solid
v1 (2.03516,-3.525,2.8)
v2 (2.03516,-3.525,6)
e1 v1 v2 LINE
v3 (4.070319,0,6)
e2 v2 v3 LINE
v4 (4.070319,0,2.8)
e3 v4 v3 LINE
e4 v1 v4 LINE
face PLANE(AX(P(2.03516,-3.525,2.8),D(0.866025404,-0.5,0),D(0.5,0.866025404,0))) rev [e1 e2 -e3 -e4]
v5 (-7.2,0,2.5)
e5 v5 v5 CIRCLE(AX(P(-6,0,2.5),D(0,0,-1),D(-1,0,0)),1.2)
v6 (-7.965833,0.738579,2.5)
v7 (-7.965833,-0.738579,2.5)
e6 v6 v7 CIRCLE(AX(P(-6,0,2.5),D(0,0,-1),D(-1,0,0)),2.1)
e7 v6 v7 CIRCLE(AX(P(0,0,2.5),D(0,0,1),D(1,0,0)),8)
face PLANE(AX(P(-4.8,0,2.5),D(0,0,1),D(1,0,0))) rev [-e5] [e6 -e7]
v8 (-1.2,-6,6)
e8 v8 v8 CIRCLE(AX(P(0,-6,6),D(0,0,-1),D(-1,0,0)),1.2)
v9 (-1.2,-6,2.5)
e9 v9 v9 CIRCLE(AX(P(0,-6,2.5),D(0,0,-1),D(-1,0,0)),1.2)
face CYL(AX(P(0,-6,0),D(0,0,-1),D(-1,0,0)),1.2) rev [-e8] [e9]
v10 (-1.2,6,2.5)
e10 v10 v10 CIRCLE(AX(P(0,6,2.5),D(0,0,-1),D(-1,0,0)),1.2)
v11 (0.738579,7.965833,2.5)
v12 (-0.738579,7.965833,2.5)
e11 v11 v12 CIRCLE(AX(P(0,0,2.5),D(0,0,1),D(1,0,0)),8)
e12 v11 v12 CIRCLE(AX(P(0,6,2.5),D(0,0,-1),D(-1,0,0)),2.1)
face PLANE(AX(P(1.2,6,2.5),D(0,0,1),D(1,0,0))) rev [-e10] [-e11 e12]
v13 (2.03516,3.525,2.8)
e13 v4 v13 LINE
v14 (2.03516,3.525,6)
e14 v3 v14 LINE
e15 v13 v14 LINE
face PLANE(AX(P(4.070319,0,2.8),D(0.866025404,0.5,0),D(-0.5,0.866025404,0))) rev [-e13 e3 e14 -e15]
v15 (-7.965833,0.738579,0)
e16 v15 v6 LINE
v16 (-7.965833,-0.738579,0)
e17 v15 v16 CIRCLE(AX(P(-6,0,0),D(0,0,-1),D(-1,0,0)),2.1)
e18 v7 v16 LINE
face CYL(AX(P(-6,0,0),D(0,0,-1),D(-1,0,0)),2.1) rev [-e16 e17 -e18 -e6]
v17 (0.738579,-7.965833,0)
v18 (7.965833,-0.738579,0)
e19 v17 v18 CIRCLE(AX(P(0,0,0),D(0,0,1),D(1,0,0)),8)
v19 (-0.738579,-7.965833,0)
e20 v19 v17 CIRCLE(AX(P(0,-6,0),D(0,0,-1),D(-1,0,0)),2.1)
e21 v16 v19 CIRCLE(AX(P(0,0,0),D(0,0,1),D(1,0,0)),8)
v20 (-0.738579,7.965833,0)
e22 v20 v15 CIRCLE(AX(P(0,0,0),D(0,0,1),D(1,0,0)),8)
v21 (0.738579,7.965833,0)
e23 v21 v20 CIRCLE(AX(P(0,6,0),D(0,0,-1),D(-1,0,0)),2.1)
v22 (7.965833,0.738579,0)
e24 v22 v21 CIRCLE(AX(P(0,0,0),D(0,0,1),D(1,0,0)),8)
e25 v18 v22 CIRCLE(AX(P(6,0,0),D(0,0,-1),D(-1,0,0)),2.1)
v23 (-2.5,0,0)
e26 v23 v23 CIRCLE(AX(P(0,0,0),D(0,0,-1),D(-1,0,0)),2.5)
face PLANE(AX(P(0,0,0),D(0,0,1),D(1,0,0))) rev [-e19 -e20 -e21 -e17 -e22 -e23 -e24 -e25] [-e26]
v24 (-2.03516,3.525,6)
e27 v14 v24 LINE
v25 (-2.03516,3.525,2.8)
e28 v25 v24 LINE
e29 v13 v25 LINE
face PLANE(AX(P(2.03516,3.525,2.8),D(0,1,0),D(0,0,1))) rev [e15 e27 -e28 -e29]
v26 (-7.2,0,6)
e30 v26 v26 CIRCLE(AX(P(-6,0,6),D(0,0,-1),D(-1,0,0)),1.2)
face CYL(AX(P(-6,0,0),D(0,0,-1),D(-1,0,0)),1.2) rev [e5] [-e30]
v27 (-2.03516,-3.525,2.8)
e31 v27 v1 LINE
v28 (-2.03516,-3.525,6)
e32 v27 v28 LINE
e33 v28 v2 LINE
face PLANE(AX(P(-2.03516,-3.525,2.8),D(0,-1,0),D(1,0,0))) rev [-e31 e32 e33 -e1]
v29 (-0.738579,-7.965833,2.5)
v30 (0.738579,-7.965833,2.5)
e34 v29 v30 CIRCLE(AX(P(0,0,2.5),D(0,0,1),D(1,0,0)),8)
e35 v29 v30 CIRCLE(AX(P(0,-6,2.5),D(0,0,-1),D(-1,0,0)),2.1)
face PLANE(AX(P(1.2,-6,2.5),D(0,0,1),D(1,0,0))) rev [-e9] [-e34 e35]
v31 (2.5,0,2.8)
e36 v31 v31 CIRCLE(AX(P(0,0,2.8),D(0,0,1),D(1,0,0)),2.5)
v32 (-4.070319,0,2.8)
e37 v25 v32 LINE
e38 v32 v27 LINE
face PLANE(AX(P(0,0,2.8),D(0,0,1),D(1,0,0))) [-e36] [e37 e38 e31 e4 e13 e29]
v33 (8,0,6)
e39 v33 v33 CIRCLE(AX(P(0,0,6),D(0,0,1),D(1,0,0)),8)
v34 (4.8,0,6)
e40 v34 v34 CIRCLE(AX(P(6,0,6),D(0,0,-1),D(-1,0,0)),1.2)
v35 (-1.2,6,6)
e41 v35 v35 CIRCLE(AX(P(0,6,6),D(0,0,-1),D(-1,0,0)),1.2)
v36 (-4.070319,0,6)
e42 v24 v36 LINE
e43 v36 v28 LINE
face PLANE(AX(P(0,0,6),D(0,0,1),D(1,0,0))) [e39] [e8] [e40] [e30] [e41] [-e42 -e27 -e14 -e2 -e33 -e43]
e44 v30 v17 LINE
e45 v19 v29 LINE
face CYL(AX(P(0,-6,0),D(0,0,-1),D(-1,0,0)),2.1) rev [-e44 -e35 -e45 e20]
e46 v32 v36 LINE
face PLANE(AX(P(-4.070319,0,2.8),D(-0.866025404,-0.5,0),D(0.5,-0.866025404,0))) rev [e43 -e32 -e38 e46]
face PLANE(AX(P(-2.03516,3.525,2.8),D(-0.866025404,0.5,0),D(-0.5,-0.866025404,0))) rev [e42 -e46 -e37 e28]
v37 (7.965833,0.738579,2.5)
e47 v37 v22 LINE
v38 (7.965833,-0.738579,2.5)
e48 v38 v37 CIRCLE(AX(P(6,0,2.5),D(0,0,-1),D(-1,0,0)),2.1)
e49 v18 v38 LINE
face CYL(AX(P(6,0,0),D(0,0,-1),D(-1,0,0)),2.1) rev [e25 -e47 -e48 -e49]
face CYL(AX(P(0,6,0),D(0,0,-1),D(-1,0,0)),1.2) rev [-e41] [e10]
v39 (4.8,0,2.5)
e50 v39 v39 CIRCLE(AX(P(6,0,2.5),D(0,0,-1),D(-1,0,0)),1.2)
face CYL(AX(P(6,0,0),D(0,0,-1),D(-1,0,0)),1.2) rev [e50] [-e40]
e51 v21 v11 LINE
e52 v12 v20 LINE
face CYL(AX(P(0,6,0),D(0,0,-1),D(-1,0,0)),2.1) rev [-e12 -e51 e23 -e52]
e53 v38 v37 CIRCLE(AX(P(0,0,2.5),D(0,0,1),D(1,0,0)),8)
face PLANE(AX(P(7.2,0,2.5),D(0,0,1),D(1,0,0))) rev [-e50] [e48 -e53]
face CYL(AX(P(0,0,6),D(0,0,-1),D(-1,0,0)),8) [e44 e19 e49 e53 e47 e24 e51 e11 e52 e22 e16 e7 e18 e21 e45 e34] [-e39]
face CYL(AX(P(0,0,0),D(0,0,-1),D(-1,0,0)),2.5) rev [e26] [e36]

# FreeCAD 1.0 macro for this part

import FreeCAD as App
import Part
import Sketcher

V = App.Vector
Q = App.Units.Quantity


def add_polygon(sketch, points):
    """Adds a closed chain of lines whose ends are joined by coincident constraints."""
    first, n = sketch.GeometryCount, len(points)
    for a, b in zip(points, points[1:] + points[:1]):
        sketch.addGeometry(Part.LineSegment(App.Vector(*a, 0), App.Vector(*b, 0)), False)
    for i in range(n):
        sketch.addConstraint(Sketcher.Constraint("Coincident", first + i, 2, first + (i + 1) % n, 1))

doc = App.newDocument("Part")
body = doc.addObject("PartDesign::Body", "Body")

# Sketch on XY plane
sketch1 = doc.addObject("Sketcher::SketchObject", "Sketch")
body.addObject(sketch1)
sketch1.AttachmentSupport = (doc.XY_Plane, [""])
sketch1.MapMode = "FlatFace"
sketch1.addGeometry(Part.Circle(V(0, 0, 0), V(0, 0, 1), 8), False)
sketch1.addConstraint(Sketcher.Constraint("Coincident", 0, 3, -1, 1))
sketch1.addConstraint(Sketcher.Constraint("Diameter", 0, 16.0))
pad1 = doc.addObject("PartDesign::Pad", "Pad")
body.addObject(pad1)
pad1.Profile = sketch1
pad1.Length = 6

# Sketch on XY plane
sketch2 = doc.addObject("Sketcher::SketchObject", "Sketch001")
body.addObject(sketch2)
sketch2.AttachmentSupport = (doc.XY_Plane, [""])
sketch2.MapMode = "FlatFace"
sketch2.AttachmentOffset = App.Placement(V(0, 0, 6), App.Rotation())
add_polygon(sketch2, [(4.1, 0), (2, 3.5), (-2, 3.5), (-4.1, 0), (-2, -3.5), (2, -3.5)])  # lines 0-5
sketch2.addConstraint(Sketcher.Constraint("Horizontal", 1))
sketch2.addConstraint(Sketcher.Constraint("Horizontal", 4))
sketch2.addConstraint(Sketcher.Constraint("Symmetric", 0, 2, 3, 2, -1, 1))
sketch2.addConstraint(Sketcher.Constraint("Symmetric", 2, 2, 5, 2, -1, 1))
sketch2.addConstraint(Sketcher.Constraint("PointOnObject", 2, 2, -1))
sketch2.addConstraint(Sketcher.Constraint("Parallel", 2, 5))
sketch2.addConstraint(Sketcher.Constraint("Vertical", 1, 2, 3, 2))
sketch2.addConstraint(Sketcher.Constraint("Angle", 0, Q("120 deg")))
sketch2.addConstraint(Sketcher.Constraint("DistanceY", 3, 2, 1, 2, 7.05))
sketch2.addConstraint(Sketcher.Constraint("DistanceX", 1, 2, 1, 1, 4.070319))
pocket1 = doc.addObject("PartDesign::Pocket", "Pocket")
body.addObject(pocket1)
pocket1.Profile = sketch2
pocket1.Length = 3.2

# Sketch on XY plane
sketch3 = doc.addObject("Sketcher::SketchObject", "Sketch002")
body.addObject(sketch3)
sketch3.AttachmentSupport = (doc.XY_Plane, [""])
sketch3.MapMode = "FlatFace"
sketch3.addGeometry(Part.Circle(V(-6, 0, 0), V(0, 0, 1), 1.2), False)
sketch3.addConstraint(Sketcher.Constraint("PointOnObject", 0, 3, -1))
sketch3.addConstraint(Sketcher.Constraint("Diameter", 0, 2.4))
sketch3.addConstraint(Sketcher.Constraint("DistanceX", 0, 3, -1, 1, 6.0))
doc.recompute()
hole = doc.addObject("PartDesign::Hole", "Hole")
body.addObject(hole)
hole.Profile = sketch3
hole.ThreadType = "None"
hole.Diameter = 2.4
hole.DepthType = "ThroughAll"
hole.HoleCutType = "Counterbore"
hole.HoleCutDiameter = 4.2
hole.HoleCutDepth = 2.5
hole.Reversed = True
doc.recompute()

polarpattern = doc.addObject("PartDesign::PolarPattern", "PolarPattern")
body.addObject(polarpattern)
polarpattern.Originals = [hole]
polarpattern.Axis = (doc.Z_Axis, [""])
polarpattern.Angle = 360
polarpattern.Occurrences = 4
body.Tip = polarpattern

# Sketch on XY plane
sketch4 = doc.addObject("Sketcher::SketchObject", "Sketch003")
body.addObject(sketch4)
sketch4.AttachmentSupport = (doc.XY_Plane, [""])
sketch4.MapMode = "FlatFace"
sketch4.addGeometry(Part.Circle(V(0, 0, 0), V(0, 0, 1), 2.5), False)
sketch4.addConstraint(Sketcher.Constraint("Coincident", 0, 3, -1, 1))
sketch4.addConstraint(Sketcher.Constraint("Diameter", 0, 5.0))
doc.recompute()
hole2 = doc.addObject("PartDesign::Hole", "Hole001")
body.addObject(hole2)
hole2.Profile = sketch4
hole2.ThreadType = "None"
hole2.Diameter = 5
hole2.DepthType = "ThroughAll"
hole2.Reversed = True

doc.recompute()
